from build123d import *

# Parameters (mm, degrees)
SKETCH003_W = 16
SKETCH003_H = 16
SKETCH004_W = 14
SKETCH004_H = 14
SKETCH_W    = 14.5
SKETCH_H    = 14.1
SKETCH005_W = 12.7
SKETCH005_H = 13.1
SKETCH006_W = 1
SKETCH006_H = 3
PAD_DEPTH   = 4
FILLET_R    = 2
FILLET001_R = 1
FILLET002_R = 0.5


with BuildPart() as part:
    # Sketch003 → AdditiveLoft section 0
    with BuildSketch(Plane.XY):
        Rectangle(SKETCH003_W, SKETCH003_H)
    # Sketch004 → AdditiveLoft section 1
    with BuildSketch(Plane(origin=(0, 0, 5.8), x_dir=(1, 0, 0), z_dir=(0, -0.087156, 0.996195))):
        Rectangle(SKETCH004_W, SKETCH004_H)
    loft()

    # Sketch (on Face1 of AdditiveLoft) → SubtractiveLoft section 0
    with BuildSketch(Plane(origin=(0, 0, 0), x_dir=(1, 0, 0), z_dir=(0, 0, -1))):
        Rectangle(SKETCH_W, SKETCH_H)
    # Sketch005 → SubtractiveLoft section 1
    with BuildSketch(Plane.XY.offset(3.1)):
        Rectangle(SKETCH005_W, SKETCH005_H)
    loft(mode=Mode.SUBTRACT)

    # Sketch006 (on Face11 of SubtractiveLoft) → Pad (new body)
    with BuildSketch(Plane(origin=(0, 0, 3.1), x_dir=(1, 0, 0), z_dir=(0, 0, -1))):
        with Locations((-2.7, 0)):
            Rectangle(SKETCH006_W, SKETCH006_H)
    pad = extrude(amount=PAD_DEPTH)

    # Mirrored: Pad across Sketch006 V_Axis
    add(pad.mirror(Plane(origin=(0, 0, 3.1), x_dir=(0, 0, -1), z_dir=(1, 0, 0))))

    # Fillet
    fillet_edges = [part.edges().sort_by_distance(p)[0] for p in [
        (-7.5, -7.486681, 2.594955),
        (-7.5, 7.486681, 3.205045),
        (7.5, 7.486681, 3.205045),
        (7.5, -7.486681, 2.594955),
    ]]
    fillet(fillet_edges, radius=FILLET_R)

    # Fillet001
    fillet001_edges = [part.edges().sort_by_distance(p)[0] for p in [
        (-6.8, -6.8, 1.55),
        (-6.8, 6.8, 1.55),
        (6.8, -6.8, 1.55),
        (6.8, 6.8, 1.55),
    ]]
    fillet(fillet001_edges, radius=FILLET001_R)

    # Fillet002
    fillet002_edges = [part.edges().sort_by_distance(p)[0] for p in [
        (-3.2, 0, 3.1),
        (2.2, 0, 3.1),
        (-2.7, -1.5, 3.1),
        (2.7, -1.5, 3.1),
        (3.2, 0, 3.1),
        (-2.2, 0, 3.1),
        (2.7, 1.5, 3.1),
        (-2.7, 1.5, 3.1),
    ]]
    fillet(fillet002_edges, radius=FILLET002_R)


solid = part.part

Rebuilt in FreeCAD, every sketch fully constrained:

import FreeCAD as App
import Part
import Sketcher
Q = App.Units.Quantity


def edges_at(feature, points):
    """Names of the edges that pass closest to the given points."""
    edges = feature.Shape.Edges
    near = lambda p: min(range(len(edges)), key=lambda i: edges[i].distToShape(Part.Vertex(*p))[0])
    return sorted({f"Edge{near(p) + 1}" for p in points})

doc = App.newDocument("Part")
body = doc.addObject("PartDesign::Body", "Body")

sketch1 = doc.addObject("Sketcher::SketchObject", "Sketch")
body.addObject(sketch1)
sketch1.AttachmentSupport = (doc.XY_Plane, [""])
sketch1.MapMode = "FlatFace"
sketch1.addGeometry(Part.LineSegment(App.Vector(-8, 8, 0), App.Vector(-8, -8, 0)), False)
sketch1.addGeometry(Part.LineSegment(App.Vector(-8, -8, 0), App.Vector(8, -8, 0)), False)
sketch1.addGeometry(Part.LineSegment(App.Vector(8, -8, 0), App.Vector(8, 8, 0)), False)
sketch1.addGeometry(Part.LineSegment(App.Vector(8, 8, 0), App.Vector(-8, 8, 0)), False)
sketch1.addConstraint(Sketcher.Constraint("Coincident", 0, 2, 1, 1))
sketch1.addConstraint(Sketcher.Constraint("Coincident", 1, 2, 2, 1))
sketch1.addConstraint(Sketcher.Constraint("Coincident", 2, 2, 3, 1))
sketch1.addConstraint(Sketcher.Constraint("Coincident", 3, 2, 0, 1))
sketch1.addConstraint(Sketcher.Constraint("Vertical", 0))
sketch1.addConstraint(Sketcher.Constraint("Horizontal", 1))
sketch1.addConstraint(Sketcher.Constraint("Vertical", 2))
sketch1.addConstraint(Sketcher.Constraint("Horizontal", 3))
sketch1.addConstraint(Sketcher.Constraint("Symmetric", 0, 2, 2, 2, -1, 1))
sketch1.addConstraint(Sketcher.Constraint("Equal", 3, 0))
sketch1.addConstraint(Sketcher.Constraint("DistanceX", 1, 1, 1, 2, Q("16 mm")))

sketch2 = doc.addObject("Sketcher::SketchObject", "Sketch001")
body.addObject(sketch2)
sketch2.Placement = App.Placement(App.Vector(0, 0, 5.8), App.Rotation(App.Vector(1, 0, 0), App.Vector(0, 0.996194678, 0.087155972), App.Vector(0, -0.087155972, 0.996194678), "ZXY"))
sketch2.addGeometry(Part.LineSegment(App.Vector(-7, 7, 0), App.Vector(-7, -7, 0)), False)
sketch2.addGeometry(Part.LineSegment(App.Vector(-7, -7, 0), App.Vector(7, -7, 0)), False)
sketch2.addGeometry(Part.LineSegment(App.Vector(7, -7, 0), App.Vector(7, 7, 0)), False)
sketch2.addGeometry(Part.LineSegment(App.Vector(7, 7, 0), App.Vector(-7, 7, 0)), False)
sketch2.addConstraint(Sketcher.Constraint("Coincident", 0, 2, 1, 1))
sketch2.addConstraint(Sketcher.Constraint("Coincident", 1, 2, 2, 1))
sketch2.addConstraint(Sketcher.Constraint("Coincident", 2, 2, 3, 1))
sketch2.addConstraint(Sketcher.Constraint("Coincident", 3, 2, 0, 1))
sketch2.addConstraint(Sketcher.Constraint("Vertical", 0))
sketch2.addConstraint(Sketcher.Constraint("Horizontal", 1))
sketch2.addConstraint(Sketcher.Constraint("Vertical", 2))
sketch2.addConstraint(Sketcher.Constraint("Horizontal", 3))
sketch2.addConstraint(Sketcher.Constraint("Symmetric", 0, 2, 2, 2, -1, 1))
sketch2.addConstraint(Sketcher.Constraint("Equal", 3, 0))
sketch2.addConstraint(Sketcher.Constraint("DistanceX", 1, 1, 1, 2, Q("14 mm")))

additiveloft = doc.addObject("PartDesign::AdditiveLoft", "AdditiveLoft")
body.addObject(additiveloft)
additiveloft.Profile = sketch1
additiveloft.Sections = [sketch2]

sketch3 = doc.addObject("Sketcher::SketchObject", "Sketch002")
body.addObject(sketch3)
sketch3.AttachmentSupport = (doc.XY_Plane, [""])
sketch3.MapMode = "FlatFace"
sketch3.addGeometry(Part.LineSegment(App.Vector(-7.25, -7.05, 0), App.Vector(-7.25, 7.05, 0)), False)
sketch3.addGeometry(Part.LineSegment(App.Vector(-7.25, 7.05, 0), App.Vector(7.25, 7.05, 0)), False)
sketch3.addGeometry(Part.LineSegment(App.Vector(7.25, 7.05, 0), App.Vector(7.25, -7.05, 0)), False)
sketch3.addGeometry(Part.LineSegment(App.Vector(7.25, -7.05, 0), App.Vector(-7.25, -7.05, 0)), False)
sketch3.addConstraint(Sketcher.Constraint("Coincident", 0, 2, 1, 1))
sketch3.addConstraint(Sketcher.Constraint("Coincident", 1, 2, 2, 1))
sketch3.addConstraint(Sketcher.Constraint("Coincident", 2, 2, 3, 1))
sketch3.addConstraint(Sketcher.Constraint("Coincident", 3, 2, 0, 1))
sketch3.addConstraint(Sketcher.Constraint("Vertical", 0))
sketch3.addConstraint(Sketcher.Constraint("Horizontal", 1))
sketch3.addConstraint(Sketcher.Constraint("Vertical", 2))
sketch3.addConstraint(Sketcher.Constraint("Horizontal", 3))
sketch3.addConstraint(Sketcher.Constraint("Symmetric", 0, 2, 2, 2, -1, 1))
sketch3.addConstraint(Sketcher.Constraint("DistanceX", 1, 1, 1, 2, Q("14.5 mm")))
sketch3.addConstraint(Sketcher.Constraint("DistanceY", 0, 1, 0, 2, Q("14.1 mm")))

sketch4 = doc.addObject("Sketcher::SketchObject", "Sketch003")
body.addObject(sketch4)
sketch4.AttachmentSupport = (doc.XY_Plane, [""])
sketch4.MapMode = "FlatFace"
sketch4.AttachmentOffset = App.Placement(App.Vector(0, 0, 3.1), App.Rotation())
sketch4.addGeometry(Part.LineSegment(App.Vector(-6.35, 6.55, 0), App.Vector(-6.35, -6.55, 0)), False)
sketch4.addGeometry(Part.LineSegment(App.Vector(-6.35, -6.55, 0), App.Vector(6.35, -6.55, 0)), False)
sketch4.addGeometry(Part.LineSegment(App.Vector(6.35, -6.55, 0), App.Vector(6.35, 6.55, 0)), False)
sketch4.addGeometry(Part.LineSegment(App.Vector(6.35, 6.55, 0), App.Vector(-6.35, 6.55, 0)), False)
sketch4.addConstraint(Sketcher.Constraint("Coincident", 0, 2, 1, 1))
sketch4.addConstraint(Sketcher.Constraint("Coincident", 1, 2, 2, 1))
sketch4.addConstraint(Sketcher.Constraint("Coincident", 2, 2, 3, 1))
sketch4.addConstraint(Sketcher.Constraint("Coincident", 3, 2, 0, 1))
sketch4.addConstraint(Sketcher.Constraint("Vertical", 0))
sketch4.addConstraint(Sketcher.Constraint("Horizontal", 1))
sketch4.addConstraint(Sketcher.Constraint("Vertical", 2))
sketch4.addConstraint(Sketcher.Constraint("Horizontal", 3))
sketch4.addConstraint(Sketcher.Constraint("Symmetric", 0, 2, 2, 2, -1, 1))
sketch4.addConstraint(Sketcher.Constraint("DistanceX", 1, 1, 1, 2, Q("12.7 mm")))
sketch4.addConstraint(Sketcher.Constraint("DistanceY", 0, 2, 0, 1, Q("13.1 mm")))

subtractiveloft = doc.addObject("PartDesign::SubtractiveLoft", "SubtractiveLoft")
body.addObject(subtractiveloft)
subtractiveloft.Profile = sketch3
subtractiveloft.Sections = [sketch4]

sketch5 = doc.addObject("Sketcher::SketchObject", "Sketch004")
body.addObject(sketch5)
sketch5.AttachmentSupport = (doc.XY_Plane, [""])
sketch5.MapMode = "FlatFace"
sketch5.AttachmentOffset = App.Placement(App.Vector(0, 0, 3.1), App.Rotation())
sketch5.addGeometry(Part.LineSegment(App.Vector(-3.2, -1.5, 0), App.Vector(-3.2, 1.5, 0)), False)
sketch5.addGeometry(Part.LineSegment(App.Vector(-3.2, 1.5, 0), App.Vector(-2.2, 1.5, 0)), False)
sketch5.addGeometry(Part.LineSegment(App.Vector(-2.2, 1.5, 0), App.Vector(-2.2, -1.5, 0)), False)
sketch5.addGeometry(Part.LineSegment(App.Vector(-2.2, -1.5, 0), App.Vector(-3.2, -1.5, 0)), False)
sketch5.addConstraint(Sketcher.Constraint("Coincident", 0, 2, 1, 1))
sketch5.addConstraint(Sketcher.Constraint("Coincident", 1, 2, 2, 1))
sketch5.addConstraint(Sketcher.Constraint("Coincident", 2, 2, 3, 1))
sketch5.addConstraint(Sketcher.Constraint("Coincident", 3, 2, 0, 1))
sketch5.addConstraint(Sketcher.Constraint("Vertical", 0))
sketch5.addConstraint(Sketcher.Constraint("Horizontal", 1))
sketch5.addConstraint(Sketcher.Constraint("Vertical", 2))
sketch5.addConstraint(Sketcher.Constraint("Horizontal", 3))
sketch5.addConstraint(Sketcher.Constraint("DistanceX", 1, 1, 1, 2, Q("1 mm")))
sketch5.addConstraint(Sketcher.Constraint("DistanceY", 0, 1, 0, 2, Q("3 mm")))
sketch5.addConstraint(Sketcher.Constraint("DistanceX", 0, 2, -1, 1, Q("3.2 mm")))
sketch5.addConstraint(Sketcher.Constraint("DistanceY", -1, 1, 0, 2, Q("1.5 mm")))
pad1 = doc.addObject("PartDesign::Pad", "Pad")
body.addObject(pad1)
pad1.Profile = sketch5
pad1.Length = 4
pad1.Reversed = True
doc.recompute()

mirrored = doc.addObject("PartDesign::Mirrored", "Mirrored")
body.addObject(mirrored)
mirrored.Originals = [pad1]
mirrored.MirrorPlane = (doc.YZ_Plane, [""])
body.Tip = mirrored
doc.recompute()

fillet = doc.addObject("PartDesign::Fillet", "Fillet")
body.addObject(fillet)
fillet.Base = (mirrored, edges_at(mirrored, [
    (-7.5, -7.487, 2.595),
    (-7.5, 7.487, 3.205),
    (7.5, 7.487, 3.205),
    (7.5, -7.487, 2.595),
]))
fillet.Radius = 2
doc.recompute()

fillet2 = doc.addObject("PartDesign::Fillet", "Fillet001")
body.addObject(fillet2)
fillet2.Base = (fillet, edges_at(fillet, [
    (-6.8, -6.8, 1.55),
    (-6.8, 6.8, 1.55),
    (6.8, -6.8, 1.55),
    (6.8, 6.8, 1.55),
]))
fillet2.Radius = 1
doc.recompute()

fillet3 = doc.addObject("PartDesign::Fillet", "Fillet002")
body.addObject(fillet3)
fillet3.Base = (fillet2, edges_at(fillet2, [
    (-3.2, 0, 3.1),
    (2.2, 0, 3.1),
    (-2.7, -1.5, 3.1),
    (2.7, -1.5, 3.1),
    (3.2, 0, 3.1),
    (-2.2, 0, 3.1),
    (2.7, 1.5, 3.1),
    (-2.7, 1.5, 3.1),
]))
fillet3.Radius = 0.5

doc.recompute()
